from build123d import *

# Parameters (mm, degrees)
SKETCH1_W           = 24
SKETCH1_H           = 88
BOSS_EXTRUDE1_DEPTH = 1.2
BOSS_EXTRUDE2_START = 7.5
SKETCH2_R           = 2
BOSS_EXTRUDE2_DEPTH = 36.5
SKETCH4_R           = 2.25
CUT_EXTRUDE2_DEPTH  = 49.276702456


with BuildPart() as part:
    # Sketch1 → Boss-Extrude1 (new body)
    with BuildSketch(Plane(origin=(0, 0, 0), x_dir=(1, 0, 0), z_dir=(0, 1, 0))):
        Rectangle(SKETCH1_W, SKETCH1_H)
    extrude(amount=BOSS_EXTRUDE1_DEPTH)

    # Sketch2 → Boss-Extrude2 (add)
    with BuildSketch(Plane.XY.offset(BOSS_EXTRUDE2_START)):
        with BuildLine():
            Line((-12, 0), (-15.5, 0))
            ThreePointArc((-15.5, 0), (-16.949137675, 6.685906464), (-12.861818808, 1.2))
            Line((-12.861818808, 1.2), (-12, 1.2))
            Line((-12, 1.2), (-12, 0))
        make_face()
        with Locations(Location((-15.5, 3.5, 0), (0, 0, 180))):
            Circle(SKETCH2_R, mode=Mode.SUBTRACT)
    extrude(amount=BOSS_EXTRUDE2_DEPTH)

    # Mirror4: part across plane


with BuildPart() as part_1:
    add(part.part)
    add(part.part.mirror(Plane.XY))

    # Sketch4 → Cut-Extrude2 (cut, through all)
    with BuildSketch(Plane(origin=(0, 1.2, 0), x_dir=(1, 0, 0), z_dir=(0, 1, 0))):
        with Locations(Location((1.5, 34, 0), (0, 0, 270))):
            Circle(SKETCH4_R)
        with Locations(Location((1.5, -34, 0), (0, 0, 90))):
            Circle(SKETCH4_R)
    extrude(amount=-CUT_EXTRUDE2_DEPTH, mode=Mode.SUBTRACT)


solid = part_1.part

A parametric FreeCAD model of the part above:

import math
import FreeCAD as App
import Part
import Sketcher
from FreeCAD import Vector
Q = App.Units.Quantity


def add_polygon(sketch, points):
    """Adds a closed chain of lines whose ends are joined by coincident constraints."""
    first, n = sketch.GeometryCount, len(points)
    for a, b in zip(points, points[1:] + points[:1]):
        sketch.addGeometry(Part.LineSegment(App.Vector(*a, 0), App.Vector(*b, 0)), False)
    for i in range(n):
        sketch.addConstraint(Sketcher.Constraint("Coincident", first + i, 2, first + (i + 1) % n, 1))

doc = App.newDocument("Part")
body = doc.addObject("PartDesign::Body", "Body")

# Sketch on XZ plane
sketch1 = body.newObject("Sketcher::SketchObject", "Sketch")
sketch1.AttachmentSupport = (doc.getObject("XZ_Plane"), [""])
sketch1.MapMode = "FlatFace"
add_polygon(sketch1, [(-12, -44), (-12, 44), (12, 44), (12, -44)])  # lines 0-3
sketch1.addConstraint([
    Sketcher.Constraint("Vertical", 0),
    Sketcher.Constraint("Horizontal", 1),
    Sketcher.Constraint("Vertical", 2),
    Sketcher.Constraint("Horizontal", 3),
    Sketcher.Constraint("Symmetric", 0, 2, 2, 2, -1, 1),
    Sketcher.Constraint("DistanceX", 1, 1, 1, 2, Q("24 mm")),
    Sketcher.Constraint("DistanceY", 0, 1, 0, 2, Q("88 mm")),
])
pad1 = body.newObject("PartDesign::Pad", "Pad")
pad1.Profile = sketch1
pad1.Length = 1.2
pad1.Reversed = True

# Sketch on XY plane
sketch2 = body.newObject("Sketcher::SketchObject", "Sketch001")
sketch2.AttachmentSupport = (doc.getObject("XY_Plane"), [""])
sketch2.MapMode = "FlatFace"
sketch2.AttachmentOffset = App.Placement(Vector(0, 0, 7.5), App.Rotation())
sketch2.addGeometry([
    Part.LineSegment(Vector(-15.5, 0, 0), Vector(-12, 0, 0)),  # 0
    Part.LineSegment(Vector(-12, 0, 0), Vector(-12, 1.2, 0)),  # 1
    Part.LineSegment(Vector(-12, 1.2, 0), Vector(-12.9, 1.2, 0)),  # 2
    Part.ArcOfCircle(Part.Circle(Vector(-15.5, 3.5, 0), Vector(0, 0, 1), 3.5), math.radians(-41), math.radians(270)),  # 3
    Part.Circle(Vector(-15.5, 3.5, 0), Vector(0, 0, 1), 2),  # 4
], False)
sketch2.addConstraint([
    Sketcher.Constraint("Coincident", 0, 2, 1, 1),
    Sketcher.Constraint("Coincident", 1, 2, 2, 1),
    Sketcher.Constraint("Coincident", 2, 2, 3, 1),
    Sketcher.Constraint("Tangent", 3, 2, 0, 1),
    Sketcher.Constraint("Horizontal", 0),
    Sketcher.Constraint("Vertical", 1),
    Sketcher.Constraint("Horizontal", 2),
    Sketcher.Constraint("Coincident", 4, 3, 3, 3),
    Sketcher.Constraint("PointOnObject", 0, 2, -1),
    Sketcher.Constraint("Diameter", 4, Q("4 mm")),
    Sketcher.Constraint("Radius", 3, Q("3.5 mm")),
    Sketcher.Constraint("DistanceX", 0, 1, 0, 2, Q("3.5 mm")),
    Sketcher.Constraint("DistanceY", 1, 1, 1, 2, Q("1.2 mm")),
    Sketcher.Constraint("DistanceX", 0, 2, -1, 1, Q("12 mm")),
])
pad2 = body.newObject("PartDesign::Pad", "Pad001")
pad2.Profile = sketch2
pad2.Length = 36.5
body2 = doc.addObject("PartDesign::Body", "Body001")
doc.recompute()

body2.BaseFeature = body
doc.recompute()

mirroring = doc.addObject("Part::Mirroring", "Mirroring")
mirroring.Source = body
mirroring.Base = Vector(0, 0, 0)
mirroring.Normal = Vector(0, 0, 1)
body3 = doc.addObject("PartDesign::Body", "Body002")
body3.BaseFeature = mirroring
boolean = body2.newObject("PartDesign::Boolean", "Boolean")
boolean.Type = "Fuse"
boolean.addObjects([body3])
doc.recompute()

# Sketch on XZ plane
sketch3 = body2.newObject("Sketcher::SketchObject", "Sketch002")
sketch3.AttachmentSupport = (doc.getObject("XZ_Plane001"), [""])
sketch3.MapMode = "FlatFace"
sketch3.AttachmentOffset = App.Placement(Vector(0, 0, -1.2), App.Rotation())
sketch3.addGeometry([
    Part.Circle(Vector(1.5, -34, 0), Vector(0, 0, 1), 2.2),
    Part.Circle(Vector(1.5, 34, 0), Vector(0, 0, 1), 2.2),
], False)
sketch3.addConstraint([
    Sketcher.Constraint("Equal", 0, 1),
    Sketcher.Constraint("Symmetric", 0, 3, 1, 3, -1),
    Sketcher.Constraint("Diameter", 0, Q("4.5 mm")),
    Sketcher.Constraint("DistanceY", 0, 3, -1, 1, Q("34 mm")),
    Sketcher.Constraint("DistanceX", -1, 1, 0, 3, Q("1.5 mm")),
])
pocket1 = body2.newObject("PartDesign::Pocket", "Pocket")
pocket1.Profile = sketch3
pocket1.Type = "ThroughAll"
pocket1.Reversed = True
mirroring.Visibility = False

doc.recompute()
